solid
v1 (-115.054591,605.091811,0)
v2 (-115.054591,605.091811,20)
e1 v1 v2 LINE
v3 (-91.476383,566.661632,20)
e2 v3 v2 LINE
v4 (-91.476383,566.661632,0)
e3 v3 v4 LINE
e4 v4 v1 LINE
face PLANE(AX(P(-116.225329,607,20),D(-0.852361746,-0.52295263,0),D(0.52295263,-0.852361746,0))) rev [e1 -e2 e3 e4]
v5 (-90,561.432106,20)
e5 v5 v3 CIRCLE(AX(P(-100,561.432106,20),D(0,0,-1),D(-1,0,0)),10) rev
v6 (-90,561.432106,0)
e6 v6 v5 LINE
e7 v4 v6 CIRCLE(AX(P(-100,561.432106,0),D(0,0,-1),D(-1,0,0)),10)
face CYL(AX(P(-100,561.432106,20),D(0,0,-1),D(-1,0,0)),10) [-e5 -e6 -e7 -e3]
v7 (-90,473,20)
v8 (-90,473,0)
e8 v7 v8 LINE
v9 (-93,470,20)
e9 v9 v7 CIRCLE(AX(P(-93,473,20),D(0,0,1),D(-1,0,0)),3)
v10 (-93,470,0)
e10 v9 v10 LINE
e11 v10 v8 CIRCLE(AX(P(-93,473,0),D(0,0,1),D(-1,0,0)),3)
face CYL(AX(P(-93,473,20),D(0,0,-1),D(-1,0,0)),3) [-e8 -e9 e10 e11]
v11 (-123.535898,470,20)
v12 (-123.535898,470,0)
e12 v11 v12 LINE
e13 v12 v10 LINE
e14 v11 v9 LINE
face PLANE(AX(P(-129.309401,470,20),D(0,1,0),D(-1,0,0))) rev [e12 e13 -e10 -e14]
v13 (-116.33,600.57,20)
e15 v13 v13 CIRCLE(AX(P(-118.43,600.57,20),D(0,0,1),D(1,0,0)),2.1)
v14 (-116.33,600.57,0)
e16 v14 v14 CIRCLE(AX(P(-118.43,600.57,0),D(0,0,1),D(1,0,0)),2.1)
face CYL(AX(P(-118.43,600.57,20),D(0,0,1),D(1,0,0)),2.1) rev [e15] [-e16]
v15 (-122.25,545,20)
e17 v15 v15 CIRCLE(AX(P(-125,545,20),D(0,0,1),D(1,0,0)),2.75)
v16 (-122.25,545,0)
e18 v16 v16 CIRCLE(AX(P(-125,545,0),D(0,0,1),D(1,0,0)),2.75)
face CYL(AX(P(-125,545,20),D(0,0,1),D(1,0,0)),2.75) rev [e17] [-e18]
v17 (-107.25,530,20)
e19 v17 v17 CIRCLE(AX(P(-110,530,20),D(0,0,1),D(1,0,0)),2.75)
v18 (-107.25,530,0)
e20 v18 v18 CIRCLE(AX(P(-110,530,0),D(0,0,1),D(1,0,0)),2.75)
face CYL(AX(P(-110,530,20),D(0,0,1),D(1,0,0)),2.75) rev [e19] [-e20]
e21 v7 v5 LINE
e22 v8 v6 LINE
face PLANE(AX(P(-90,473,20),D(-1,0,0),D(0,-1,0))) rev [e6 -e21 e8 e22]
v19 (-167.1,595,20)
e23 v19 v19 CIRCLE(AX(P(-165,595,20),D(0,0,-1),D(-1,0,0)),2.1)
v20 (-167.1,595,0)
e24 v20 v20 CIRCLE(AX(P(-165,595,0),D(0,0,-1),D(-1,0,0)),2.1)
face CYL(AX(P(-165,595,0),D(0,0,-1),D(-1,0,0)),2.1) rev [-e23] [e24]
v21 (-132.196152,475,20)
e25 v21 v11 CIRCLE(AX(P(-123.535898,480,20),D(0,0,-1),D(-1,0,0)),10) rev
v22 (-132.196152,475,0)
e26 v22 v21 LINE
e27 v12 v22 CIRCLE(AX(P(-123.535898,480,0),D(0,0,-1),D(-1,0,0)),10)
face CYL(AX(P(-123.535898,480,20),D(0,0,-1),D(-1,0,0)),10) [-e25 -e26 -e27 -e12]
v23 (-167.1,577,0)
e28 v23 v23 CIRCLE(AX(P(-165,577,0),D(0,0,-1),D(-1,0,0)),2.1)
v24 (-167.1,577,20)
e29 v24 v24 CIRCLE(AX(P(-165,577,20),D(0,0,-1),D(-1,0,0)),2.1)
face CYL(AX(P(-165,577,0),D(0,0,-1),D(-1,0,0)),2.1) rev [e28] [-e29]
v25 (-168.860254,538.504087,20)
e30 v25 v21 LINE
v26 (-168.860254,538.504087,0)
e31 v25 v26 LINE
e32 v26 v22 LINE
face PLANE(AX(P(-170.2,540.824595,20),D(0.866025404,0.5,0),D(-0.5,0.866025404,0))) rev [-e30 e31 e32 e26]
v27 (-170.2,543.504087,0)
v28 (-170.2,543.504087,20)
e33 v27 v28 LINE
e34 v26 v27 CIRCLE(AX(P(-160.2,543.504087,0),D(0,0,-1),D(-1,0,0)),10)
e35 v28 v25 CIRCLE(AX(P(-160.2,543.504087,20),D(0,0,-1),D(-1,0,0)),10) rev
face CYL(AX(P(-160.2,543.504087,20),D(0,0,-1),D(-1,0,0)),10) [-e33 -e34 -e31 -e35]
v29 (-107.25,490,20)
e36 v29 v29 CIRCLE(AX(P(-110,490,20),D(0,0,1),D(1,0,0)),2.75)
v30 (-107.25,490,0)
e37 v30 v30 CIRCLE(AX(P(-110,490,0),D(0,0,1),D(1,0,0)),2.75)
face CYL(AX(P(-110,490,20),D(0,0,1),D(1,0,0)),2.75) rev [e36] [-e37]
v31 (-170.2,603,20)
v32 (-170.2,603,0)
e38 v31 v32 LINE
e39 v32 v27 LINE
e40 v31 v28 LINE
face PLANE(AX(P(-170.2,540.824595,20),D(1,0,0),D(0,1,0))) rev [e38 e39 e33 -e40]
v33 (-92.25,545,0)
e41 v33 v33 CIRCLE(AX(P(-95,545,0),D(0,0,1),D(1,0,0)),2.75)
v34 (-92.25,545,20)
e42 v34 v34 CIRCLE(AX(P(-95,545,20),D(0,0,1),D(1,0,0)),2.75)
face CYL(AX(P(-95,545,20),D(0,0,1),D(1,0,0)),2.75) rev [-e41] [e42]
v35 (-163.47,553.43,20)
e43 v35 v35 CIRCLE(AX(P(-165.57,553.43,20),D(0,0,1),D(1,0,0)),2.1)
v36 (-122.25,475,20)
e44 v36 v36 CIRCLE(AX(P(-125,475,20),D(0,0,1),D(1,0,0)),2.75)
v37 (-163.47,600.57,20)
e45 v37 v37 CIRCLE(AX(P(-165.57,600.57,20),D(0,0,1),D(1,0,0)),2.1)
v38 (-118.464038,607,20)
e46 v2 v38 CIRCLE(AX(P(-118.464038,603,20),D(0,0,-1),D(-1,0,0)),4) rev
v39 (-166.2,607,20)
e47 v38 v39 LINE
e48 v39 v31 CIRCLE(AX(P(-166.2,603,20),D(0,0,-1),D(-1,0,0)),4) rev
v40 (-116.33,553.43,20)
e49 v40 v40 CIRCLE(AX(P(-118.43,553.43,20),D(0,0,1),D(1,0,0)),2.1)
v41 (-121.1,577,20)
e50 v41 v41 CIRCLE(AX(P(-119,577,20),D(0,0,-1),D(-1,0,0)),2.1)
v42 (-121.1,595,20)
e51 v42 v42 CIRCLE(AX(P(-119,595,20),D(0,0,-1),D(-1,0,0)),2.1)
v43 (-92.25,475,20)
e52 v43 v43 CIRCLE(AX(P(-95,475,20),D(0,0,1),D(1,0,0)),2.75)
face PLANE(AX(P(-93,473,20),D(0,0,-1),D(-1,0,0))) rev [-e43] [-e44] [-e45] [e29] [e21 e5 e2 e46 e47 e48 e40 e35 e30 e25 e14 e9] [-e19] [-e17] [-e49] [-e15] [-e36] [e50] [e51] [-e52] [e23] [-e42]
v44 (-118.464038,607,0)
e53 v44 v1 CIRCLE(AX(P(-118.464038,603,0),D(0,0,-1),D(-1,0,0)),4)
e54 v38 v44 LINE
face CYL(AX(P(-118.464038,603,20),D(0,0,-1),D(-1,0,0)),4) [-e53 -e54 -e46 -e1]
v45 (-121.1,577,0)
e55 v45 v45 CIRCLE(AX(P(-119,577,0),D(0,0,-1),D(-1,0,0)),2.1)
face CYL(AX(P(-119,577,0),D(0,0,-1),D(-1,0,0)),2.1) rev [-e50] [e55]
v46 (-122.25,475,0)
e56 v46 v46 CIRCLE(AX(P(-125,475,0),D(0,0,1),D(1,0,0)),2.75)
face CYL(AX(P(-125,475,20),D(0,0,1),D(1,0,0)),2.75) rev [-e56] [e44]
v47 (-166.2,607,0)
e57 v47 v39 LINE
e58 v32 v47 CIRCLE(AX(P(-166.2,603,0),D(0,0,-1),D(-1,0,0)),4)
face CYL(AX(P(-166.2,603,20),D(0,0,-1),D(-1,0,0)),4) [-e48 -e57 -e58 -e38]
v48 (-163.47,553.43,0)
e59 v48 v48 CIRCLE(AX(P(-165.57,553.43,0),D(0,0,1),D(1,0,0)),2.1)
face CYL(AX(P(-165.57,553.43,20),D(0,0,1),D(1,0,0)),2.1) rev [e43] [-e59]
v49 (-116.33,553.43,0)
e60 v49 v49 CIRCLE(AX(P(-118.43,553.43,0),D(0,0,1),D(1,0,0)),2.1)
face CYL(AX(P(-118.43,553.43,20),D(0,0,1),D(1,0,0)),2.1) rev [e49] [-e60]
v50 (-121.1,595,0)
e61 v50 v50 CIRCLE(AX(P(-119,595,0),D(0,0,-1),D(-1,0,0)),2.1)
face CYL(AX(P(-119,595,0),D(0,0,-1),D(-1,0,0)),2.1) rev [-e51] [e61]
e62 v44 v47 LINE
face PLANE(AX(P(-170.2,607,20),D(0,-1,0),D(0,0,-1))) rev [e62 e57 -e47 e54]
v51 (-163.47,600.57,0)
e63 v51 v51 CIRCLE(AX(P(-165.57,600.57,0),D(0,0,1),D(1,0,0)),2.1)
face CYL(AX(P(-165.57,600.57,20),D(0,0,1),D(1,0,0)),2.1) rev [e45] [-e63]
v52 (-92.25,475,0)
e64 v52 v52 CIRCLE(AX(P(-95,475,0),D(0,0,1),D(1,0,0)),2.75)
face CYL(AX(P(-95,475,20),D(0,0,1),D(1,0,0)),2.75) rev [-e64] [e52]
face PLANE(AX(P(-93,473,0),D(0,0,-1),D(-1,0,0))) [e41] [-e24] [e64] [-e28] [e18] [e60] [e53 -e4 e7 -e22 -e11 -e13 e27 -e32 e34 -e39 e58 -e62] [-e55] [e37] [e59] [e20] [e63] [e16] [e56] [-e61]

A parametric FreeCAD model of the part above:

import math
import FreeCAD as App
import Part
import Sketcher
from FreeCAD import Vector
Q = App.Units.Quantity


def edges_at(feature, points):
    """Names of the edges that pass closest to the given points."""
    edges = feature.Shape.Edges
    near = lambda p: min(range(len(edges)), key=lambda i: edges[i].distToShape(Part.Vertex(*p))[0])
    return sorted({f"Edge{near(p) + 1}" for p in points})

doc = App.newDocument("Part")
body = doc.addObject("PartDesign::Body", "Body")

# Sketch on XY plane
sketch1 = doc.addObject("Sketcher::SketchObject", "Sketch")
body.addObject(sketch1)
sketch1.AttachmentSupport = (doc.XY_Plane, [""])
sketch1.MapMode = "FlatFace"
sketch1.addGeometry([
    Part.LineSegment(Vector(-170.2, 540.8, 0), Vector(-129.3, 470, 0)),  # 0
    Part.LineSegment(Vector(-129.3, 470, 0), Vector(-93, 470, 0)),  # 1
    Part.ArcOfCircle(Part.Circle(Vector(-93, 473, 0), Vector(0, 0, 1), 3), math.radians(-90), math.radians(0)),  # 2
    Part.LineSegment(Vector(-90, 473, 0), Vector(-90, 564.3, 0)),  # 3
    Part.LineSegment(Vector(-90, 564.3, 0), Vector(-116.2, 607, 0)),  # 4
    Part.LineSegment(Vector(-116.2, 607, 0), Vector(-170.2, 607, 0)),  # 5
    Part.LineSegment(Vector(-170.2, 607, 0), Vector(-170.2, 540.8, 0)),  # 6
], False)
sketch1.addConstraint([
    Sketcher.Constraint("Coincident", 0, 2, 1, 1),
    Sketcher.Constraint("Tangent", 1, 2, 2, 1),
    Sketcher.Constraint("Tangent", 2, 2, 3, 1),
    Sketcher.Constraint("Coincident", 3, 2, 4, 1),
    Sketcher.Constraint("Coincident", 4, 2, 5, 1),
    Sketcher.Constraint("Coincident", 5, 2, 6, 1),
    Sketcher.Constraint("Coincident", 6, 2, 0, 1),
    Sketcher.Constraint("Horizontal", 1),
    Sketcher.Constraint("Vertical", 3),
    Sketcher.Constraint("Horizontal", 5),
    Sketcher.Constraint("Vertical", 6),
    Sketcher.Constraint("Radius", 2, 3.0),
    Sketcher.Constraint("Angle", 0, Q("-60 deg")),
    Sketcher.Constraint("DistanceX", 2, 3, -1, 1, 93.0),
    Sketcher.Constraint("DistanceY", -1, 1, 2, 3, 473.0),
    Sketcher.Constraint("DistanceY", -1, 1, 4, 2, 607.0),
    Sketcher.Constraint("DistanceX", 5, 2, -1, 1, 170.2),
    Sketcher.Constraint("DistanceX", 1, 1, 1, 2, 36.309401),
    Sketcher.Constraint("DistanceX", 5, 2, 5, 1, 53.974671),
    Sketcher.Constraint("DistanceY", 3, 1, 3, 2, 91.255273),
])
pad1 = doc.addObject("PartDesign::Pad", "Pad")
body.addObject(pad1)
pad1.Profile = sketch1
pad1.Length = 20
doc.recompute()

fillet = doc.addObject("PartDesign::Fillet", "Fillet")
body.addObject(fillet)
fillet.Base = (pad1, edges_at(pad1, [(-90, 564.255, 10), (-129.309, 470, 10), (-170.2, 540.825, 10)]))
fillet.Radius = 10

# Sketch on XY plane
sketch2 = doc.addObject("Sketcher::SketchObject", "Sketch001")
body.addObject(sketch2)
sketch2.AttachmentSupport = (doc.XY_Plane, [""])
sketch2.MapMode = "FlatFace"
sketch2.addGeometry([
    Part.Circle(Vector(-119, 595, 0), Vector(0, 0, 1), 2.1),
    Part.Circle(Vector(-119, 577, 0), Vector(0, 0, 1), 2.1),
    Part.Circle(Vector(-165, 577, 0), Vector(0, 0, 1), 2.1),
    Part.Circle(Vector(-165, 595, 0), Vector(0, 0, 1), 2.1),
], False)
sketch2.addConstraint([
    Sketcher.Constraint("Equal", 0, 1),
    Sketcher.Constraint("Equal", 1, 2),
    Sketcher.Constraint("Equal", 2, 3),
    Sketcher.Constraint("Horizontal", 1, 3, 2, 3),
    Sketcher.Constraint("Horizontal", 0, 3, 3, 3),
    Sketcher.Constraint("Vertical", 0, 3, 1, 3),
    Sketcher.Constraint("Vertical", 2, 3, 3, 3),
    Sketcher.Constraint("Diameter", 0, 4.2),
    Sketcher.Constraint("DistanceX", 0, 3, -1, 1, 119.0),
    Sketcher.Constraint("DistanceY", -1, 1, 0, 3, 595.0),
    Sketcher.Constraint("DistanceY", -1, 1, 1, 3, 577.0),
    Sketcher.Constraint("DistanceX", 2, 3, -1, 1, 165.0),
])
doc.recompute()
hole = doc.addObject("PartDesign::Hole", "Hole")
body.addObject(hole)
hole.Profile = sketch2
hole.ThreadType = "None"
hole.Diameter = 4.2
hole.DepthType = "ThroughAll"
hole.Reversed = True

# Sketch on XY plane
sketch3 = doc.addObject("Sketcher::SketchObject", "Sketch002")
body.addObject(sketch3)
sketch3.AttachmentSupport = (doc.XY_Plane, [""])
sketch3.MapMode = "FlatFace"
sketch3.AttachmentOffset = App.Placement(Vector(0, 0, 20), App.Rotation())
sketch3.addGeometry([
    Part.Circle(Vector(-95, 545, 0), Vector(0, 0, 1), 2.8),  # 0
    Part.Circle(Vector(-125, 545, 0), Vector(0, 0, 1), 2.8),  # 1
    Part.Circle(Vector(-125, 475, 0), Vector(0, 0, 1), 2.8),  # 2
    Part.Circle(Vector(-95, 475, 0), Vector(0, 0, 1), 2.8),  # 3
    Part.Circle(Vector(-110, 490, 0), Vector(0, 0, 1), 2.8),  # 4
    Part.Circle(Vector(-110, 530, 0), Vector(0, 0, 1), 2.8),  # 5
], False)
sketch3.addConstraint([
    Sketcher.Constraint("Equal", 0, 1),
    Sketcher.Constraint("Equal", 1, 2),
    Sketcher.Constraint("Equal", 2, 3),
    Sketcher.Constraint("Equal", 3, 4),
    Sketcher.Constraint("Equal", 4, 5),
    Sketcher.Constraint("Horizontal", 0, 3, 1, 3),
    Sketcher.Constraint("Horizontal", 2, 3, 3, 3),
    Sketcher.Constraint("Vertical", 1, 3, 2, 3),
    Sketcher.Constraint("Vertical", 0, 3, 3, 3),
    Sketcher.Constraint("Vertical", 4, 3, 5, 3),
    Sketcher.Constraint("Diameter", 0, 5.5),
    Sketcher.Constraint("DistanceX", 0, 3, -1, 1, 95.0),
    Sketcher.Constraint("DistanceY", -1, 1, 0, 3, 545.0),
    Sketcher.Constraint("DistanceX", 1, 3, -1, 1, 125.0),
    Sketcher.Constraint("DistanceY", -1, 1, 2, 3, 475.0),
    Sketcher.Constraint("DistanceX", 4, 3, -1, 1, 110.0),
    Sketcher.Constraint("DistanceY", -1, 1, 4, 3, 490.0),
    Sketcher.Constraint("DistanceY", -1, 1, 5, 3, 530.0),
])
doc.recompute()
hole2 = doc.addObject("PartDesign::Hole", "Hole001")
body.addObject(hole2)
hole2.Profile = sketch3
hole2.ThreadType = "None"
hole2.Diameter = 5.5
hole2.DepthType = "ThroughAll"

# Sketch on XY plane
sketch4 = doc.addObject("Sketcher::SketchObject", "Sketch003")
body.addObject(sketch4)
sketch4.AttachmentSupport = (doc.XY_Plane, [""])
sketch4.MapMode = "FlatFace"
sketch4.AttachmentOffset = App.Placement(Vector(0, 0, 20), App.Rotation())
sketch4.addGeometry([
    Part.Circle(Vector(-165.6, 553.4, 0), Vector(0, 0, 1), 2.1),
    Part.Circle(Vector(-165.6, 600.6, 0), Vector(0, 0, 1), 2.1),
    Part.Circle(Vector(-118.4, 553.4, 0), Vector(0, 0, 1), 2.1),
    Part.Circle(Vector(-118.4, 600.6, 0), Vector(0, 0, 1), 2.1),
], False)
sketch4.addConstraint([
    Sketcher.Constraint("Equal", 0, 1),
    Sketcher.Constraint("Equal", 1, 2),
    Sketcher.Constraint("Equal", 2, 3),
    Sketcher.Constraint("Horizontal", 0, 3, 2, 3),
    Sketcher.Constraint("Horizontal", 1, 3, 3, 3),
    Sketcher.Constraint("Vertical", 0, 3, 1, 3),
    Sketcher.Constraint("Vertical", 2, 3, 3, 3),
    Sketcher.Constraint("Diameter", 0, 4.2),
    Sketcher.Constraint("DistanceX", 0, 3, -1, 1, 165.57),
    Sketcher.Constraint("DistanceY", -1, 1, 0, 3, 553.43),
    Sketcher.Constraint("DistanceY", -1, 1, 1, 3, 600.57),
    Sketcher.Constraint("DistanceX", 2, 3, -1, 1, 118.43),
])
doc.recompute()
hole3 = doc.addObject("PartDesign::Hole", "Hole002")
body.addObject(hole3)
hole3.Profile = sketch4
hole3.ThreadType = "None"
hole3.Diameter = 4.2
hole3.DepthType = "ThroughAll"
doc.recompute()

fillet2 = doc.addObject("PartDesign::Fillet", "Fillet001")
body.addObject(fillet2)
fillet2.Base = (hole3, edges_at(hole3, [(-116.225, 607, 10), (-170.2, 607, 10)]))
fillet2.Radius = 4

doc.recompute()
